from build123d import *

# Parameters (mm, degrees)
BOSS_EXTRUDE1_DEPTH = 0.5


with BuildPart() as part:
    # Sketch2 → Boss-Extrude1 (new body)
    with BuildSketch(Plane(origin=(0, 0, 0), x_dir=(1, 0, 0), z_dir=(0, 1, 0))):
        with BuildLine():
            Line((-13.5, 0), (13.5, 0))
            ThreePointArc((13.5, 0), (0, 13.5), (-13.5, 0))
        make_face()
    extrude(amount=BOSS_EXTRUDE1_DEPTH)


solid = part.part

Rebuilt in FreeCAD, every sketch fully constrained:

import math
import FreeCAD as App
import Part
import Sketcher

V = App.Vector
Q = App.Units.Quantity

doc = App.newDocument("Part")
params = doc.addObject("Spreadsheet::Sheet", "Params")
for row, (alias, value) in enumerate([
    ("sketch1_radius", "13.5 mm"),
    ("pad1_length", "0.5 mm"),
], start=1):
    params.set(f"A{row}", alias)
    params.set(f"B{row}", "=" + value)
    params.setAlias(f"B{row}", alias)

body = doc.addObject("PartDesign::Body", "Body")

sketch1 = doc.addObject("Sketcher::SketchObject", "Sketch")
body.addObject(sketch1)
sketch1.AttachmentSupport = (doc.XZ_Plane, [""])
sketch1.MapMode = "FlatFace"
sketch1.addGeometry(Part.LineSegment(V(-14, 0, 0), V(14, 0, 0)), False)
sketch1.addGeometry(Part.ArcOfCircle(Part.Circle(V(0, 0, 0), V(0, 0, 1), 14), math.radians(180), math.radians(360)), False)
sketch1.addConstraint(Sketcher.Constraint("Coincident", 0, 1, 1, 1))
sketch1.addConstraint(Sketcher.Constraint("Coincident", 1, 2, 0, 2))
sketch1.addConstraint(Sketcher.Constraint("Horizontal", 0))
sketch1.addConstraint(Sketcher.Constraint("Coincident", 1, 3, -1, 1))
sketch1.addConstraint(Sketcher.Constraint("PointOnObject", 0, 1, -1))
sketch1.addConstraint(Sketcher.Constraint("Radius", 1, Q("13.5 mm")))
sketch1.setExpression("Constraints[5]", "Params.sketch1_radius")
pad1 = doc.addObject("PartDesign::Pad", "Pad")
body.addObject(pad1)
pad1.Profile = sketch1
pad1.setExpression("Length", "Params.pad1_length")
pad1.Reversed = True

doc.recompute()
